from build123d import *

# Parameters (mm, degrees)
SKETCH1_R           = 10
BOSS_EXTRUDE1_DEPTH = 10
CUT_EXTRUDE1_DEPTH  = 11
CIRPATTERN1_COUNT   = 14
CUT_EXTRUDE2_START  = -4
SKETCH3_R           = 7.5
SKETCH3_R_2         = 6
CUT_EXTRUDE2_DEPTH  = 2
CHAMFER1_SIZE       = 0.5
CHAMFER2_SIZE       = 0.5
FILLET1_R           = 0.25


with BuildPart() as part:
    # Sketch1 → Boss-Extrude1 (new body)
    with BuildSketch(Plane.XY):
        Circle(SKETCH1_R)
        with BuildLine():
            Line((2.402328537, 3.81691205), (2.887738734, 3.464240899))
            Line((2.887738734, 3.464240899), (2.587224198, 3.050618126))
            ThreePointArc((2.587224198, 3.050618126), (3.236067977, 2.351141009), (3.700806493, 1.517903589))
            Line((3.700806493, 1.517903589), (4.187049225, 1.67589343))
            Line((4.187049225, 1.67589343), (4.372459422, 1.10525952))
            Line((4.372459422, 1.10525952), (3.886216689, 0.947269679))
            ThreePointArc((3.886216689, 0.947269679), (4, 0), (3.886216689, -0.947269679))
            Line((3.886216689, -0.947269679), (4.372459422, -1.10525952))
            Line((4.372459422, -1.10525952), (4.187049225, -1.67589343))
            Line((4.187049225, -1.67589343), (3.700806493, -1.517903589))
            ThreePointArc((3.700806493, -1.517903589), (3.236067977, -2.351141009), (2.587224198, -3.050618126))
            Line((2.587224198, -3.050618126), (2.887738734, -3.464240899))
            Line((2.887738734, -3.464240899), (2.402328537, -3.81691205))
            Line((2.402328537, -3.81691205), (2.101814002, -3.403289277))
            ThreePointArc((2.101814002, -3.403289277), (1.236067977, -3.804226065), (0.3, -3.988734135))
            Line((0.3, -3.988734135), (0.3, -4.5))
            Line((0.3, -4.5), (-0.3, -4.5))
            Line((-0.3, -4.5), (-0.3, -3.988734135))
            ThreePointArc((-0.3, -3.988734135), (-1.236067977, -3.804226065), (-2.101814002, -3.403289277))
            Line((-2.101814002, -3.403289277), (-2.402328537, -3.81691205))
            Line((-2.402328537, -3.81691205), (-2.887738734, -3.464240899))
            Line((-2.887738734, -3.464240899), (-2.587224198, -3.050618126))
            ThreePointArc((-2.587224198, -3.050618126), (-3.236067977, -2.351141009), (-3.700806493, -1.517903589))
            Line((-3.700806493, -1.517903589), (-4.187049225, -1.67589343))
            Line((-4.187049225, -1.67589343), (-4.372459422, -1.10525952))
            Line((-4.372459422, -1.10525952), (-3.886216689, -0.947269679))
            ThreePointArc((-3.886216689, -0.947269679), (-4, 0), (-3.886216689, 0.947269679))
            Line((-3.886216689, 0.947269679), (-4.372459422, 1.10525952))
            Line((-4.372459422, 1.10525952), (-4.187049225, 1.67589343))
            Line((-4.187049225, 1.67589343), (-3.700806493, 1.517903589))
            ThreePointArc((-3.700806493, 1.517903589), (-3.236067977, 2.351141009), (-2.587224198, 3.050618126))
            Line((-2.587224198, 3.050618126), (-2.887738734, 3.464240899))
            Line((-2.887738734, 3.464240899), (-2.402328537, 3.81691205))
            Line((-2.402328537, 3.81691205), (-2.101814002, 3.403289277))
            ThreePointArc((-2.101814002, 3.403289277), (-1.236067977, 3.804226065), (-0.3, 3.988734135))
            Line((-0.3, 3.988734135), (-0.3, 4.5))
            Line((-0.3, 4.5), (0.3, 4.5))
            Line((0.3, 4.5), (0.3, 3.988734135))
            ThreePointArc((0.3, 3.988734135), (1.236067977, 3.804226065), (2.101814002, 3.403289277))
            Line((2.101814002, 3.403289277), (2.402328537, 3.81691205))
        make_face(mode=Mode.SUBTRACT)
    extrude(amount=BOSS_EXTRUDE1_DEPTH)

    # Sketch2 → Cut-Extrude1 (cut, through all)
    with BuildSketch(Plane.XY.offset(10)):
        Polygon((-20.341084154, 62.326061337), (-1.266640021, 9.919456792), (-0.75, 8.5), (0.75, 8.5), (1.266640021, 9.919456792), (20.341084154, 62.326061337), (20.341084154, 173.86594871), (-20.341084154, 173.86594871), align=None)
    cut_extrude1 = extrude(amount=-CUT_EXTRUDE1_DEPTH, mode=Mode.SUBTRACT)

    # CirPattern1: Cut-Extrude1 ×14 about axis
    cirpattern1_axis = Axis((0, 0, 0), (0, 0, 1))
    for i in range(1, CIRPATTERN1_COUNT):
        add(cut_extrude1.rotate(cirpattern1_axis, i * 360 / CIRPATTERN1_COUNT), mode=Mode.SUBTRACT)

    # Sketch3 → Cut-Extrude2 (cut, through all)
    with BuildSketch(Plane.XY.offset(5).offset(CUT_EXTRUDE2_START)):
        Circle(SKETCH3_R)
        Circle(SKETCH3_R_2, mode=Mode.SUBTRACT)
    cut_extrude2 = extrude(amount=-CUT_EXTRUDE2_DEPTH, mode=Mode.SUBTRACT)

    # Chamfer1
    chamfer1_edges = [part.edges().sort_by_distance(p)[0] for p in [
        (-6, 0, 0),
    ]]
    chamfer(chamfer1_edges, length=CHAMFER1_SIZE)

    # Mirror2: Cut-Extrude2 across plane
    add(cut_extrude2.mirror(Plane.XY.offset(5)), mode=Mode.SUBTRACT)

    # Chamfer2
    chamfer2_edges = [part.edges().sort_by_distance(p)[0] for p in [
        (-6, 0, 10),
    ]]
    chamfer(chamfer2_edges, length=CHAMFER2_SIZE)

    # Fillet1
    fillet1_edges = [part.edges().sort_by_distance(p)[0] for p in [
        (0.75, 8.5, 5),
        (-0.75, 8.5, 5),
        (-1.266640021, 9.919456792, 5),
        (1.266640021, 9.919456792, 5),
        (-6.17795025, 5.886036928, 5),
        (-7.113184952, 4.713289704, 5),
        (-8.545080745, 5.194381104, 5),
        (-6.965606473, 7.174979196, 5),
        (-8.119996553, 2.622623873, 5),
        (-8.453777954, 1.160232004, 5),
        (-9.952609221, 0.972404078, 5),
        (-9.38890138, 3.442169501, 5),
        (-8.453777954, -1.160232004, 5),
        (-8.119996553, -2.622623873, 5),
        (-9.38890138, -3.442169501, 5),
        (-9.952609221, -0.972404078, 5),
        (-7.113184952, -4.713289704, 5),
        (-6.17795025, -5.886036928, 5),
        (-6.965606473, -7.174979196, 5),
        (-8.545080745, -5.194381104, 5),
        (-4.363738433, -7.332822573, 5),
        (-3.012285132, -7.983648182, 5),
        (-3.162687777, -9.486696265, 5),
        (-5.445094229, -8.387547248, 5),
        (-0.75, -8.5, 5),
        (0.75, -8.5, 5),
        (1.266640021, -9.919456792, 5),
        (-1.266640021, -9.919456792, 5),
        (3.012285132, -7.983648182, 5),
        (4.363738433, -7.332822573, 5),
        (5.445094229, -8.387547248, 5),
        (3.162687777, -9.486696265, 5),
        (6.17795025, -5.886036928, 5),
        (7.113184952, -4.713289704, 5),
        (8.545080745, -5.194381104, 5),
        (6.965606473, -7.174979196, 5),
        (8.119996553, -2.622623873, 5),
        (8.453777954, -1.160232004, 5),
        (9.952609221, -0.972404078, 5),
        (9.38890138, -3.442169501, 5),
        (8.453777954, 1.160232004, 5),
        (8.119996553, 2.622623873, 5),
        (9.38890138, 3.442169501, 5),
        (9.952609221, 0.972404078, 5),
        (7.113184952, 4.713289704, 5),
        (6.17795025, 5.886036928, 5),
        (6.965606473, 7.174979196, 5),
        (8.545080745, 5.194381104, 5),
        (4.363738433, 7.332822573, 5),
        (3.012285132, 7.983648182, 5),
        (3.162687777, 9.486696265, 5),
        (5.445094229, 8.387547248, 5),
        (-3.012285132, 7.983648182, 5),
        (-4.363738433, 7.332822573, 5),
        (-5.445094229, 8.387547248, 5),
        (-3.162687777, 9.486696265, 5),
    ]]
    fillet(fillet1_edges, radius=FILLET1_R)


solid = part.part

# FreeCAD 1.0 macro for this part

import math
import FreeCAD as App
import Part
import Sketcher

V = App.Vector
Q = App.Units.Quantity


def edges_at(feature, points):
    """Names of the edges that pass closest to the given points."""
    edges = feature.Shape.Edges
    near = lambda p: min(range(len(edges)), key=lambda i: edges[i].distToShape(Part.Vertex(*p))[0])
    return sorted({f"Edge{near(p) + 1}" for p in points})


def add_polygon(sketch, points):
    """Adds a closed chain of lines whose ends are joined by coincident constraints."""
    first, n = sketch.GeometryCount, len(points)
    for a, b in zip(points, points[1:] + points[:1]):
        sketch.addGeometry(Part.LineSegment(App.Vector(*a, 0), App.Vector(*b, 0)), False)
    for i in range(n):
        sketch.addConstraint(Sketcher.Constraint("Coincident", first + i, 2, first + (i + 1) % n, 1))

doc = App.newDocument("Part")
body = doc.addObject("PartDesign::Body", "Body")

# Sketch on XY plane
sketch1 = body.newObject("Sketcher::SketchObject", "Sketch")
sketch1.AttachmentSupport = (doc.getObject("XY_Plane"), [""])
sketch1.MapMode = "FlatFace"
sketch1.addGeometry([
    Part.Circle(V(0, 0, 0), V(0, 0, 1), 10),  # 0
    Part.LineSegment(V(2.1, 3.4, 0), V(2.4, 3.8, 0)),  # 1
    Part.LineSegment(V(2.4, 3.8, 0), V(2.9, 3.5, 0)),  # 2
    Part.LineSegment(V(2.9, 3.5, 0), V(2.6, 3.1, 0)),  # 3
    Part.ArcOfCircle(Part.Circle(V(0, 0, 0), V(0, 0, 1), 4), math.radians(22), math.radians(50)),  # 4
    Part.LineSegment(V(3.7, 1.5, 0), V(4.2, 1.7, 0)),  # 5
    Part.LineSegment(V(4.2, 1.7, 0), V(4.4, 1.1, 0)),  # 6
    Part.LineSegment(V(4.4, 1.1, 0), V(3.9, 0.9, 0)),  # 7
    Part.ArcOfCircle(Part.Circle(V(0, 0, 0), V(0, 0, 1), 4), math.radians(-14), math.radians(14)),  # 8
    Part.LineSegment(V(3.9, -0.9, 0), V(4.4, -1.1, 0)),  # 9
    Part.LineSegment(V(4.4, -1.1, 0), V(4.2, -1.7, 0)),  # 10
    Part.LineSegment(V(4.2, -1.7, 0), V(3.7, -1.5, 0)),  # 11
    Part.ArcOfCircle(Part.Circle(V(0, 0, 0), V(0, 0, 1), 4), math.radians(-50), math.radians(-22)),  # 12
    Part.LineSegment(V(2.6, -3.1, 0), V(2.9, -3.5, 0)),  # 13
    Part.LineSegment(V(2.9, -3.5, 0), V(2.4, -3.8, 0)),  # 14
    Part.LineSegment(V(2.4, -3.8, 0), V(2.1, -3.4, 0)),  # 15
    Part.ArcOfCircle(Part.Circle(V(0, 0, 0), V(0, 0, 1), 4), math.radians(-86), math.radians(-58)),  # 16
    Part.LineSegment(V(0.3, -4, 0), V(0.3, -4.5, 0)),  # 17
    Part.LineSegment(V(0.3, -4.5, 0), V(-0.3, -4.5, 0)),  # 18
    Part.LineSegment(V(-0.3, -4.5, 0), V(-0.3, -4, 0)),  # 19
    Part.ArcOfCircle(Part.Circle(V(0, 0, 0), V(0, 0, 1), 4), math.radians(-122), math.radians(-94)),  # 20
    Part.LineSegment(V(-2.1, -3.4, 0), V(-2.4, -3.8, 0)),  # 21
    Part.LineSegment(V(-2.4, -3.8, 0), V(-2.9, -3.5, 0)),  # 22
    Part.LineSegment(V(-2.9, -3.5, 0), V(-2.6, -3.1, 0)),  # 23
    Part.ArcOfCircle(Part.Circle(V(0, 0, 0), V(0, 0, 1), 4), math.radians(-158), math.radians(-130)),  # 24
    Part.LineSegment(V(-3.7, -1.5, 0), V(-4.2, -1.7, 0)),  # 25
    Part.LineSegment(V(-4.2, -1.7, 0), V(-4.4, -1.1, 0)),  # 26
    Part.LineSegment(V(-4.4, -1.1, 0), V(-3.9, -0.9, 0)),  # 27
    Part.ArcOfCircle(Part.Circle(V(0, 0, 0), V(0, 0, 1), 4), math.radians(166), math.radians(194)),  # 28
    Part.LineSegment(V(-3.9, 0.9, 0), V(-4.4, 1.1, 0)),  # 29
    Part.LineSegment(V(-4.4, 1.1, 0), V(-4.2, 1.7, 0)),  # 30
    Part.LineSegment(V(-4.2, 1.7, 0), V(-3.7, 1.5, 0)),  # 31
    Part.ArcOfCircle(Part.Circle(V(0, 0, 0), V(0, 0, 1), 4), math.radians(130), math.radians(158)),  # 32
    Part.LineSegment(V(-2.6, 3.1, 0), V(-2.9, 3.5, 0)),  # 33
    Part.LineSegment(V(-2.9, 3.5, 0), V(-2.4, 3.8, 0)),  # 34
    Part.LineSegment(V(-2.4, 3.8, 0), V(-2.1, 3.4, 0)),  # 35
    Part.ArcOfCircle(Part.Circle(V(0, 0, 0), V(0, 0, 1), 4), math.radians(94), math.radians(122)),  # 36
    Part.LineSegment(V(-0.3, 4, 0), V(-0.3, 4.5, 0)),  # 37
    Part.LineSegment(V(-0.3, 4.5, 0), V(0.3, 4.5, 0)),  # 38
    Part.LineSegment(V(0.3, 4.5, 0), V(0.3, 4, 0)),  # 39
    Part.ArcOfCircle(Part.Circle(V(0, 0, 0), V(0, 0, 1), 4), math.radians(58), math.radians(86)),  # 40
], False)
sketch1.addConstraint([
    Sketcher.Constraint("Coincident", 1, 2, 2, 1),
    Sketcher.Constraint("Coincident", 2, 2, 3, 1),
    Sketcher.Constraint("Coincident", 3, 2, 4, 2),
    Sketcher.Constraint("Coincident", 4, 1, 5, 1),
    Sketcher.Constraint("Coincident", 5, 2, 6, 1),
    Sketcher.Constraint("Coincident", 6, 2, 7, 1),
    Sketcher.Constraint("Coincident", 7, 2, 8, 2),
    Sketcher.Constraint("Coincident", 8, 1, 9, 1),
    Sketcher.Constraint("Coincident", 9, 2, 10, 1),
    Sketcher.Constraint("Coincident", 10, 2, 11, 1),
    Sketcher.Constraint("Coincident", 11, 2, 12, 2),
    Sketcher.Constraint("Coincident", 12, 1, 13, 1),
    Sketcher.Constraint("Coincident", 13, 2, 14, 1),
    Sketcher.Constraint("Coincident", 14, 2, 15, 1),
    Sketcher.Constraint("Coincident", 15, 2, 16, 2),
    Sketcher.Constraint("Coincident", 16, 1, 17, 1),
    Sketcher.Constraint("Coincident", 17, 2, 18, 1),
    Sketcher.Constraint("Coincident", 18, 2, 19, 1),
    Sketcher.Constraint("Coincident", 19, 2, 20, 2),
    Sketcher.Constraint("Coincident", 20, 1, 21, 1),
    Sketcher.Constraint("Coincident", 21, 2, 22, 1),
    Sketcher.Constraint("Coincident", 22, 2, 23, 1),
    Sketcher.Constraint("Coincident", 23, 2, 24, 2),
    Sketcher.Constraint("Coincident", 24, 1, 25, 1),
    Sketcher.Constraint("Coincident", 25, 2, 26, 1),
    Sketcher.Constraint("Coincident", 26, 2, 27, 1),
    Sketcher.Constraint("Coincident", 27, 2, 28, 2),
    Sketcher.Constraint("Coincident", 28, 1, 29, 1),
    Sketcher.Constraint("Coincident", 29, 2, 30, 1),
    Sketcher.Constraint("Coincident", 30, 2, 31, 1),
    Sketcher.Constraint("Coincident", 31, 2, 32, 2),
    Sketcher.Constraint("Coincident", 32, 1, 33, 1),
    Sketcher.Constraint("Coincident", 33, 2, 34, 1),
    Sketcher.Constraint("Coincident", 34, 2, 35, 1),
    Sketcher.Constraint("Coincident", 35, 2, 36, 2),
    Sketcher.Constraint("Coincident", 36, 1, 37, 1),
    Sketcher.Constraint("Coincident", 37, 2, 38, 1),
    Sketcher.Constraint("Coincident", 38, 2, 39, 1),
    Sketcher.Constraint("Coincident", 39, 2, 40, 2),
    Sketcher.Constraint("Coincident", 40, 1, 1, 1),
    Sketcher.Constraint("Vertical", 17),
    Sketcher.Constraint("Horizontal", 18),
    Sketcher.Constraint("Vertical", 19),
    Sketcher.Constraint("Vertical", 37),
    Sketcher.Constraint("Horizontal", 38),
    Sketcher.Constraint("Vertical", 39),
    Sketcher.Constraint("Coincident", 0, 3, -1, 1),
    Sketcher.Constraint("Coincident", 4, 3, -1, 1),
    Sketcher.Constraint("Coincident", 8, 3, -1, 1),
    Sketcher.Constraint("Coincident", 12, 3, -1, 1),
    Sketcher.Constraint("Coincident", 16, 3, -1, 1),
    Sketcher.Constraint("Coincident", 20, 3, -1, 1),
    Sketcher.Constraint("Coincident", 24, 3, -1, 1),
    Sketcher.Constraint("Coincident", 28, 3, -1, 1),
    Sketcher.Constraint("Coincident", 32, 3, -1, 1),
    Sketcher.Constraint("Coincident", 36, 3, -1, 1),
    Sketcher.Constraint("Coincident", 40, 3, -1, 1),
    Sketcher.Constraint("Equal", 4, 8),
    Sketcher.Constraint("Equal", 8, 12),
    Sketcher.Constraint("Equal", 12, 16),
    Sketcher.Constraint("Equal", 16, 20),
    Sketcher.Constraint("Equal", 20, 24),
    Sketcher.Constraint("Equal", 24, 28),
    Sketcher.Constraint("Equal", 28, 32),
    Sketcher.Constraint("Equal", 32, 36),
    Sketcher.Constraint("Equal", 36, 40),
    Sketcher.Constraint("Symmetric", 1, 2, 21, 2, -1, 1),
    Sketcher.Constraint("Symmetric", 2, 2, 22, 2, -1, 1),
    Sketcher.Constraint("Symmetric", 5, 2, 25, 2, -1, 1),
    Sketcher.Constraint("Symmetric", 6, 2, 26, 2, -1, 1),
    Sketcher.Constraint("Symmetric", 9, 2, 29, 2, -1, 1),
    Sketcher.Constraint("Symmetric", 10, 2, 30, 2, -1, 1),
    Sketcher.Constraint("Symmetric", 13, 2, 33, 2, -1, 1),
    Sketcher.Constraint("Symmetric", 14, 2, 34, 2, -1, 1),
    Sketcher.Constraint("Symmetric", 17, 2, 37, 2, -1, 1),
    Sketcher.Constraint("Symmetric", 14, 2, 21, 2, -2),
    Sketcher.Constraint("Symmetric", 13, 2, 22, 2, -2),
    Sketcher.Constraint("Symmetric", 10, 2, 25, 2, -2),
    Sketcher.Constraint("Symmetric", 9, 2, 26, 2, -2),
    Sketcher.Constraint("Perpendicular", 1, 2),
    Sketcher.Constraint("Perpendicular", 2, 3),
    Sketcher.Constraint("Perpendicular", 5, 6),
    Sketcher.Constraint("Perpendicular", 6, 7),
    Sketcher.Constraint("Perpendicular", 9, 10),
    Sketcher.Constraint("Perpendicular", 10, 11),
    Sketcher.Constraint("Perpendicular", 13, 14),
    Sketcher.Constraint("Perpendicular", 14, 15),
    Sketcher.Constraint("Parallel", 3, 21),
    Sketcher.Constraint("Perpendicular", 22, 23),
    Sketcher.Constraint("Parallel", 7, 25),
    Sketcher.Constraint("Perpendicular", 26, 27),
    Sketcher.Constraint("Parallel", 11, 29),
    Sketcher.Constraint("Perpendicular", 30, 31),
    Sketcher.Constraint("Parallel", 15, 33),
    Sketcher.Constraint("Perpendicular", 34, 35),
    Sketcher.Constraint("Horizontal", 16, 1, 19, 2),
    Sketcher.Constraint("Horizontal", 36, 1, 39, 2),
    Sketcher.Constraint("Equal", 1, 3),
    Sketcher.Constraint("Equal", 3, 5),
    Sketcher.Constraint("Equal", 2, 6),
    Sketcher.Constraint("Equal", 5, 7),
    Sketcher.Constraint("Diameter", 0, 20.0),
    Sketcher.Constraint("Radius", 4, 4.0),
    Sketcher.Constraint("Angle", 1, Q("54 deg")),
    Sketcher.Constraint("Angle", 5, Q("18 deg")),
    Sketcher.Constraint("DistanceX", 18, 2, 18, 1, 0.6),
    Sketcher.Constraint("Distance", 2, 0.6),
    Sketcher.Constraint("DistanceY", 17, 2, -1, 1, 4.5),
    Sketcher.Constraint("DistanceX", -1, 1, 1, 2, 2.402329),
])
pad1 = body.newObject("PartDesign::Pad", "Pad")
pad1.Profile = sketch1
pad1.Length = 10

# Sketch on XY plane
sketch2 = body.newObject("Sketcher::SketchObject", "Sketch001")
sketch2.AttachmentSupport = (doc.getObject("XY_Plane"), [""])
sketch2.MapMode = "FlatFace"
sketch2.AttachmentOffset = App.Placement(V(0, 0, 10), App.Rotation())
add_polygon(sketch2, [(-20.3, 62.3), (-1.3, 9.9), (-0.8, 8.5), (0.8, 8.5), (1.3, 9.9), (20.3, 62.3), (20.3, 173.9), (-20.3, 173.9)])  # lines 0-7
sketch2.addConstraint([
    Sketcher.Constraint("Horizontal", 2),
    Sketcher.Constraint("Vertical", 5),
    Sketcher.Constraint("Horizontal", 6),
    Sketcher.Constraint("Vertical", 7),
    Sketcher.Constraint("Symmetric", 0, 2, 3, 2, -2),
    Sketcher.Constraint("Symmetric", 4, 2, 7, 2, -2),
    Sketcher.Constraint("Parallel", 0, 1),
    Sketcher.Constraint("Parallel", 3, 4),
    Sketcher.Constraint("Angle", 0, Q("-70 deg")),
    Sketcher.Constraint("DistanceX", 2, 1, 2, 2, 1.5),
    Sketcher.Constraint("DistanceY", -1, 1, 1, 2, 8.5),
    Sketcher.Constraint("DistanceX", 6, 2, 6, 1, 40.682168),
    Sketcher.Constraint("DistanceY", 5, 1, 5, 2, 111.539887),
    Sketcher.Constraint("DistanceX", 0, 2, -1, 1, 1.26664),
])
pocket1 = body.newObject("PartDesign::Pocket", "Pocket")
pocket1.Profile = sketch2
pocket1.Type = "ThroughAll"
doc.recompute()

polarpattern = body.newObject("PartDesign::PolarPattern", "PolarPattern")
polarpattern.Originals = [pocket1]
polarpattern.Axis = (doc.getObject("Z_Axis"), [""])
polarpattern.Angle = 360
polarpattern.Occurrences = 14
body.Tip = polarpattern

# Sketch on XY plane
sketch3 = body.newObject("Sketcher::SketchObject", "Sketch002")
sketch3.AttachmentSupport = (doc.getObject("XY_Plane"), [""])
sketch3.MapMode = "FlatFace"
sketch3.AttachmentOffset = App.Placement(V(0, 0, 1), App.Rotation())
sketch3.addGeometry([
    Part.Circle(V(0, 0, 0), V(0, 0, 1), 8),
    Part.Circle(V(0, 0, 0), V(0, 0, 1), 6),
], False)
sketch3.addConstraint([
    Sketcher.Constraint("Coincident", 0, 3, -1, 1),
    Sketcher.Constraint("Coincident", 1, 3, -1, 1),
    Sketcher.Constraint("Diameter", 0, 15.0),
    Sketcher.Constraint("Diameter", 1, 12.0),
])
pocket2 = body.newObject("PartDesign::Pocket", "Pocket001")
pocket2.Profile = sketch3
pocket2.Type = "ThroughAll"
doc.recompute()

chamfer = body.newObject("PartDesign::Chamfer", "Chamfer")
chamfer.Base = (pocket2, edges_at(pocket2, [(-6, 0, 0)]))
chamfer.Size = 0.5
doc.recompute()

datumplane = body.newObject("PartDesign::Plane", "DatumPlane")
datumplane.AttachmentSupport = (doc.getObject("XY_Plane"), [""])
datumplane.MapMode = "FlatFace"
datumplane.AttachmentOffset = App.Placement(V(0, 0, 5), App.Rotation())
mirrored = body.newObject("PartDesign::Mirrored", "Mirrored")
mirrored.Originals = [pocket2]
mirrored.MirrorPlane = (datumplane, [""])
body.Tip = mirrored
doc.recompute()

chamfer2 = body.newObject("PartDesign::Chamfer", "Chamfer001")
chamfer2.Base = (mirrored, edges_at(mirrored, [(-6, 0, 10)]))
chamfer2.Size = 0.5
doc.recompute()

fillet = body.newObject("PartDesign::Fillet", "Fillet")
fillet.Base = (chamfer2, edges_at(chamfer2, [
    (0.75, 8.5, 5),
    (-0.75, 8.5, 5),
    (-1.267, 9.919, 5),
    (1.267, 9.919, 5),
    (-6.178, 5.886, 5),
    (-7.113, 4.713, 5),
    (-8.545, 5.194, 5),
    (-6.966, 7.175, 5),
    (-8.12, 2.623, 5),
    (-8.454, 1.16, 5),
    (-9.953, 0.972, 5),
    (-9.389, 3.442, 5),
    (-8.454, -1.16, 5),
    (-8.12, -2.623, 5),
    (-9.389, -3.442, 5),
    (-9.953, -0.972, 5),
    (-7.113, -4.713, 5),
    (-6.178, -5.886, 5),
    (-6.966, -7.175, 5),
    (-8.545, -5.194, 5),
    (-4.364, -7.333, 5),
    (-3.012, -7.984, 5),
    (-3.163, -9.487, 5),
    (-5.445, -8.388, 5),
    (-0.75, -8.5, 5),
    (0.75, -8.5, 5),
    (1.267, -9.919, 5),
    (-1.267, -9.919, 5),
    (3.012, -7.984, 5),
    (4.364, -7.333, 5),
    (5.445, -8.388, 5),
    (3.163, -9.487, 5),
    (6.178, -5.886, 5),
    (7.113, -4.713, 5),
    (8.545, -5.194, 5),
    (6.966, -7.175, 5),
    (8.12, -2.623, 5),
    (8.454, -1.16, 5),
    (9.953, -0.972, 5),
    (9.389, -3.442, 5),
    (8.454, 1.16, 5),
    (8.12, 2.623, 5),
    (9.389, 3.442, 5),
    (9.953, 0.972, 5),
    (7.113, 4.713, 5),
    (6.178, 5.886, 5),
    (6.966, 7.175, 5),
    (8.545, 5.194, 5),
    (4.364, 7.333, 5),
    (3.012, 7.984, 5),
    (3.163, 9.487, 5),
    (5.445, 8.388, 5),
    (-3.012, 7.984, 5),
    (-4.364, 7.333, 5),
    (-5.445, 8.388, 5),
    (-3.163, 9.487, 5),
]))
fillet.Radius = 0.25

doc.recompute()
